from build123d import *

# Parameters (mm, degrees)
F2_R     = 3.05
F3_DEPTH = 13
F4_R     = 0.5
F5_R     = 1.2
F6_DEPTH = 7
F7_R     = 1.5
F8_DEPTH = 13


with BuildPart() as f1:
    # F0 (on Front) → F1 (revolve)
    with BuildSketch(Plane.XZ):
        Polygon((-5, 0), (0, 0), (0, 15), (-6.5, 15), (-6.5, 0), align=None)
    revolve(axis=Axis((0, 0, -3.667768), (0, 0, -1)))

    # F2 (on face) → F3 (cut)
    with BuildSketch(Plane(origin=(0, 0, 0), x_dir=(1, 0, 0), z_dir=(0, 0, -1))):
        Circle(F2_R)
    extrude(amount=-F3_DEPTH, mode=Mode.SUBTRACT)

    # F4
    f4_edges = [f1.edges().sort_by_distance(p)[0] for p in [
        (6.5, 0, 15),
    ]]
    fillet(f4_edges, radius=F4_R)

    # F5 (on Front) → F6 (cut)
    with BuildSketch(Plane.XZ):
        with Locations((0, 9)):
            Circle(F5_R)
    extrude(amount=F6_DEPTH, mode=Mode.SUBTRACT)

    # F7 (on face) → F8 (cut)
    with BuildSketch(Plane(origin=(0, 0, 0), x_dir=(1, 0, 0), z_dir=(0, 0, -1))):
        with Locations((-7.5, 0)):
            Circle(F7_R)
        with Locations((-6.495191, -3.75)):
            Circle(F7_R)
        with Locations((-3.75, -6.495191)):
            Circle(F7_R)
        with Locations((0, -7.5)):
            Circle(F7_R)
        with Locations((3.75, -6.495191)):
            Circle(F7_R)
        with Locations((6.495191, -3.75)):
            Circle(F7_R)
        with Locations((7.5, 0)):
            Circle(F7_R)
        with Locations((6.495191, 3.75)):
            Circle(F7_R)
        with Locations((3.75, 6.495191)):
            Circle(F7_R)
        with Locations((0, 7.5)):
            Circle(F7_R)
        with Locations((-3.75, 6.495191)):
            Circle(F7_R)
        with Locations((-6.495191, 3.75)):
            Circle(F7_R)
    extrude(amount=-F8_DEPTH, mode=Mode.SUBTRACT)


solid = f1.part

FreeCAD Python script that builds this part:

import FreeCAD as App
import Part
import Sketcher
from FreeCAD import Vector


def edges_at(feature, points):
    """Names of the edges that pass closest to the given points."""
    edges = feature.Shape.Edges
    near = lambda p: min(range(len(edges)), key=lambda i: edges[i].distToShape(Part.Vertex(*p))[0])
    return sorted({f"Edge{near(p) + 1}" for p in points})

doc = App.newDocument("Part")
body = doc.addObject("PartDesign::Body", "Body")

# Sketch on XZ plane
sketch1 = body.newObject("Sketcher::SketchObject", "Sketch")
sketch1.AttachmentSupport = (doc.getObject("XZ_Plane"), [""])
sketch1.MapMode = "FlatFace"
sketch1.addGeometry([
    Part.LineSegment(Vector(0, 0, 0), Vector(0, 15, 0)),
    Part.LineSegment(Vector(0, 15, 0), Vector(-6, 15, 0)),
    Part.LineSegment(Vector(-6, 15, 0), Vector(-6, 0, 0)),
    Part.LineSegment(Vector(-6, 0, 0), Vector(0, 0, 0)),
], False)
sketch1.addConstraint([
    Sketcher.Constraint("Coincident", 0, 2, 1, 1),
    Sketcher.Constraint("Coincident", 1, 2, 2, 1),
    Sketcher.Constraint("Coincident", 2, 2, 3, 1),
    Sketcher.Constraint("Coincident", 3, 2, 0, 1),
    Sketcher.Constraint("Vertical", 0),
    Sketcher.Constraint("Horizontal", 1),
    Sketcher.Constraint("Vertical", 2),
    Sketcher.Constraint("Horizontal", 3),
    Sketcher.Constraint("Coincident", 3, 2, -1, 1),
    Sketcher.Constraint("DistanceY", 0, 1, 0, 2, 15.0),
    Sketcher.Constraint("DistanceX", 1, 2, 1, 1, 6.5),
])
revolution = body.newObject("PartDesign::Revolution", "Revolution")
revolution.Profile = sketch1
revolution.ReferenceAxis = (sketch1, ["V_Axis"])
revolution.Angle = 360

# Sketch on XY plane
sketch2 = body.newObject("Sketcher::SketchObject", "Sketch001")
sketch2.AttachmentSupport = (doc.getObject("XY_Plane"), [""])
sketch2.MapMode = "FlatFace"
sketch2.addGeometry(Part.Circle(Vector(0, 0, 0), Vector(0, 0, 1), 3), False)
sketch2.addConstraint([
    Sketcher.Constraint("Coincident", 0, 3, -1, 1),
    Sketcher.Constraint("Diameter", 0, 6.1),
])
pocket1 = body.newObject("PartDesign::Pocket", "Pocket")
pocket1.Profile = sketch2
pocket1.Length = 13
pocket1.Reversed = True
doc.recompute()

fillet = body.newObject("PartDesign::Fillet", "Fillet")
fillet.Base = (pocket1, edges_at(pocket1, [(6.5, 0, 15)]))
fillet.Radius = 0.5

# Sketch on XZ plane
sketch3 = body.newObject("Sketcher::SketchObject", "Sketch002")
sketch3.AttachmentSupport = (doc.getObject("XZ_Plane"), [""])
sketch3.MapMode = "FlatFace"
sketch3.addGeometry(Part.Circle(Vector(0, 9, 0), Vector(0, 0, 1), 1.2), False)
sketch3.addConstraint([
    Sketcher.Constraint("PointOnObject", 0, 3, -2),
    Sketcher.Constraint("Diameter", 0, 2.4),
    Sketcher.Constraint("DistanceY", -1, 1, 0, 3, 9.0),
])
pocket2 = body.newObject("PartDesign::Pocket", "Pocket001")
pocket2.Profile = sketch3
pocket2.Length = 7
pocket2.Reversed = True

# Sketch on XY plane
sketch4 = body.newObject("Sketcher::SketchObject", "Sketch003")
sketch4.AttachmentSupport = (doc.getObject("XY_Plane"), [""])
sketch4.MapMode = "FlatFace"
sketch4.addGeometry([
    Part.Circle(Vector(-7.5, 0, 0), Vector(0, 0, 1), 1.5),  # 0
    Part.Circle(Vector(-6.5, 3.8, 0), Vector(0, 0, 1), 1.5),  # 1
    Part.Circle(Vector(-3.8, 6.5, 0), Vector(0, 0, 1), 1.5),  # 2
    Part.Circle(Vector(0, 7.5, 0), Vector(0, 0, 1), 1.5),  # 3
    Part.Circle(Vector(3.8, 6.5, 0), Vector(0, 0, 1), 1.5),  # 4
    Part.Circle(Vector(6.5, 3.8, 0), Vector(0, 0, 1), 1.5),  # 5
    Part.Circle(Vector(7.5, 0, 0), Vector(0, 0, 1), 1.5),  # 6
    Part.Circle(Vector(6.5, -3.8, 0), Vector(0, 0, 1), 1.5),  # 7
    Part.Circle(Vector(3.8, -6.5, 0), Vector(0, 0, 1), 1.5),  # 8
    Part.Circle(Vector(0, -7.5, 0), Vector(0, 0, 1), 1.5),  # 9
    Part.Circle(Vector(-3.8, -6.5, 0), Vector(0, 0, 1), 1.5),  # 10
    Part.Circle(Vector(-6.5, -3.8, 0), Vector(0, 0, 1), 1.5),  # 11
], False)
sketch4.addConstraint([
    Sketcher.Constraint("Equal", 0, 1),
    Sketcher.Constraint("Equal", 1, 2),
    Sketcher.Constraint("Equal", 2, 3),
    Sketcher.Constraint("Equal", 3, 4),
    Sketcher.Constraint("Equal", 4, 5),
    Sketcher.Constraint("Equal", 5, 6),
    Sketcher.Constraint("Equal", 6, 7),
    Sketcher.Constraint("Equal", 7, 8),
    Sketcher.Constraint("Equal", 8, 9),
    Sketcher.Constraint("Equal", 9, 10),
    Sketcher.Constraint("Equal", 10, 11),
    Sketcher.Constraint("Symmetric", 0, 3, 6, 3, -1, 1),
    Sketcher.Constraint("Symmetric", 1, 3, 7, 3, -1, 1),
    Sketcher.Constraint("Symmetric", 2, 3, 8, 3, -1, 1),
    Sketcher.Constraint("Symmetric", 3, 3, 9, 3, -1, 1),
    Sketcher.Constraint("Symmetric", 4, 3, 10, 3, -1, 1),
    Sketcher.Constraint("Symmetric", 5, 3, 11, 3, -1, 1),
    Sketcher.Constraint("Symmetric", 2, 3, 4, 3, -2),
    Sketcher.Constraint("Symmetric", 1, 3, 5, 3, -2),
    Sketcher.Constraint("PointOnObject", 0, 3, -1),
    Sketcher.Constraint("PointOnObject", 3, 3, -2),
    Sketcher.Constraint("Diameter", 0, 3.0),
    Sketcher.Constraint("DistanceX", 0, 3, -1, 1, 7.5),
    Sketcher.Constraint("DistanceY", -1, 1, 3, 3, 7.5),
    Sketcher.Constraint("DistanceX", 2, 3, 4, 3, 7.5),
    Sketcher.Constraint("DistanceY", 7, 3, 5, 3, 7.5),
    Sketcher.Constraint("DistanceX", 1, 3, -1, 1, 6.495191),
    Sketcher.Constraint("DistanceY", -1, 1, 2, 3, 6.495191),
])
pocket3 = body.newObject("PartDesign::Pocket", "Pocket002")
pocket3.Profile = sketch4
pocket3.Length = 13
pocket3.Reversed = True

doc.recompute()
